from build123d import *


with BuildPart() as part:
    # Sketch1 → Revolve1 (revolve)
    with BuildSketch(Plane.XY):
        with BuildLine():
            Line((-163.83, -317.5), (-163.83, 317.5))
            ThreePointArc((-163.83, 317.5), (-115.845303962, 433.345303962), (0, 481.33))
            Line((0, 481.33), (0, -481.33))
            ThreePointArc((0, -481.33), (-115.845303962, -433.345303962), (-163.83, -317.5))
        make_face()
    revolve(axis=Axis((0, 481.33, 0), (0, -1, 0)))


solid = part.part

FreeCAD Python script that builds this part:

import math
import FreeCAD as App
import Part
import Sketcher
Q = App.Units.Quantity

doc = App.newDocument("Part")
body = doc.addObject("PartDesign::Body", "Body")

# Sketch on XY plane
sketch1 = body.newObject("Sketcher::SketchObject", "Sketch")
sketch1.AttachmentSupport = (doc.getObject("XY_Plane"), [""])
sketch1.MapMode = "FlatFace"
sketch1.addGeometry(Part.LineSegment(App.Vector(-163.83, 317.5, 0), App.Vector(-163.83, -317.5, 0)), False)
sketch1.addGeometry(Part.ArcOfCircle(Part.Circle(App.Vector(0, -317.5, 0), App.Vector(0, 0, 1), 163.83), math.radians(180), math.radians(270)), False)
sketch1.addGeometry(Part.LineSegment(App.Vector(0, -481.33, 0), App.Vector(0, 481.33, 0)), False)
sketch1.addGeometry(Part.ArcOfCircle(Part.Circle(App.Vector(0, 317.5, 0), App.Vector(0, 0, 1), 163.83), math.radians(90), math.radians(180)), False)
sketch1.addConstraint(Sketcher.Constraint("Tangent", 0, 2, 1, 1))
sketch1.addConstraint(Sketcher.Constraint("Coincident", 1, 2, 2, 1))
sketch1.addConstraint(Sketcher.Constraint("Coincident", 2, 2, 3, 1))
sketch1.addConstraint(Sketcher.Constraint("Tangent", 3, 2, 0, 1))
sketch1.addConstraint(Sketcher.Constraint("Vertical", 0))
sketch1.addConstraint(Sketcher.Constraint("Vertical", 2))
sketch1.addConstraint(Sketcher.Constraint("Equal", 1, 3))
sketch1.addConstraint(Sketcher.Constraint("Symmetric", 1, 3, 3, 3, -1, 1))
sketch1.addConstraint(Sketcher.Constraint("PointOnObject", 1, 2, -2))
sketch1.addConstraint(Sketcher.Constraint("DistanceY", 0, 2, 0, 1, Q("25 in")))
sketch1.addConstraint(Sketcher.Constraint("Radius", 1, Q("6.45 in")))
revolution = body.newObject("PartDesign::Revolution", "Revolution")
revolution.Profile = sketch1
revolution.ReferenceAxis = (sketch1, ["V_Axis"])
revolution.Angle = 360

doc.recompute()
